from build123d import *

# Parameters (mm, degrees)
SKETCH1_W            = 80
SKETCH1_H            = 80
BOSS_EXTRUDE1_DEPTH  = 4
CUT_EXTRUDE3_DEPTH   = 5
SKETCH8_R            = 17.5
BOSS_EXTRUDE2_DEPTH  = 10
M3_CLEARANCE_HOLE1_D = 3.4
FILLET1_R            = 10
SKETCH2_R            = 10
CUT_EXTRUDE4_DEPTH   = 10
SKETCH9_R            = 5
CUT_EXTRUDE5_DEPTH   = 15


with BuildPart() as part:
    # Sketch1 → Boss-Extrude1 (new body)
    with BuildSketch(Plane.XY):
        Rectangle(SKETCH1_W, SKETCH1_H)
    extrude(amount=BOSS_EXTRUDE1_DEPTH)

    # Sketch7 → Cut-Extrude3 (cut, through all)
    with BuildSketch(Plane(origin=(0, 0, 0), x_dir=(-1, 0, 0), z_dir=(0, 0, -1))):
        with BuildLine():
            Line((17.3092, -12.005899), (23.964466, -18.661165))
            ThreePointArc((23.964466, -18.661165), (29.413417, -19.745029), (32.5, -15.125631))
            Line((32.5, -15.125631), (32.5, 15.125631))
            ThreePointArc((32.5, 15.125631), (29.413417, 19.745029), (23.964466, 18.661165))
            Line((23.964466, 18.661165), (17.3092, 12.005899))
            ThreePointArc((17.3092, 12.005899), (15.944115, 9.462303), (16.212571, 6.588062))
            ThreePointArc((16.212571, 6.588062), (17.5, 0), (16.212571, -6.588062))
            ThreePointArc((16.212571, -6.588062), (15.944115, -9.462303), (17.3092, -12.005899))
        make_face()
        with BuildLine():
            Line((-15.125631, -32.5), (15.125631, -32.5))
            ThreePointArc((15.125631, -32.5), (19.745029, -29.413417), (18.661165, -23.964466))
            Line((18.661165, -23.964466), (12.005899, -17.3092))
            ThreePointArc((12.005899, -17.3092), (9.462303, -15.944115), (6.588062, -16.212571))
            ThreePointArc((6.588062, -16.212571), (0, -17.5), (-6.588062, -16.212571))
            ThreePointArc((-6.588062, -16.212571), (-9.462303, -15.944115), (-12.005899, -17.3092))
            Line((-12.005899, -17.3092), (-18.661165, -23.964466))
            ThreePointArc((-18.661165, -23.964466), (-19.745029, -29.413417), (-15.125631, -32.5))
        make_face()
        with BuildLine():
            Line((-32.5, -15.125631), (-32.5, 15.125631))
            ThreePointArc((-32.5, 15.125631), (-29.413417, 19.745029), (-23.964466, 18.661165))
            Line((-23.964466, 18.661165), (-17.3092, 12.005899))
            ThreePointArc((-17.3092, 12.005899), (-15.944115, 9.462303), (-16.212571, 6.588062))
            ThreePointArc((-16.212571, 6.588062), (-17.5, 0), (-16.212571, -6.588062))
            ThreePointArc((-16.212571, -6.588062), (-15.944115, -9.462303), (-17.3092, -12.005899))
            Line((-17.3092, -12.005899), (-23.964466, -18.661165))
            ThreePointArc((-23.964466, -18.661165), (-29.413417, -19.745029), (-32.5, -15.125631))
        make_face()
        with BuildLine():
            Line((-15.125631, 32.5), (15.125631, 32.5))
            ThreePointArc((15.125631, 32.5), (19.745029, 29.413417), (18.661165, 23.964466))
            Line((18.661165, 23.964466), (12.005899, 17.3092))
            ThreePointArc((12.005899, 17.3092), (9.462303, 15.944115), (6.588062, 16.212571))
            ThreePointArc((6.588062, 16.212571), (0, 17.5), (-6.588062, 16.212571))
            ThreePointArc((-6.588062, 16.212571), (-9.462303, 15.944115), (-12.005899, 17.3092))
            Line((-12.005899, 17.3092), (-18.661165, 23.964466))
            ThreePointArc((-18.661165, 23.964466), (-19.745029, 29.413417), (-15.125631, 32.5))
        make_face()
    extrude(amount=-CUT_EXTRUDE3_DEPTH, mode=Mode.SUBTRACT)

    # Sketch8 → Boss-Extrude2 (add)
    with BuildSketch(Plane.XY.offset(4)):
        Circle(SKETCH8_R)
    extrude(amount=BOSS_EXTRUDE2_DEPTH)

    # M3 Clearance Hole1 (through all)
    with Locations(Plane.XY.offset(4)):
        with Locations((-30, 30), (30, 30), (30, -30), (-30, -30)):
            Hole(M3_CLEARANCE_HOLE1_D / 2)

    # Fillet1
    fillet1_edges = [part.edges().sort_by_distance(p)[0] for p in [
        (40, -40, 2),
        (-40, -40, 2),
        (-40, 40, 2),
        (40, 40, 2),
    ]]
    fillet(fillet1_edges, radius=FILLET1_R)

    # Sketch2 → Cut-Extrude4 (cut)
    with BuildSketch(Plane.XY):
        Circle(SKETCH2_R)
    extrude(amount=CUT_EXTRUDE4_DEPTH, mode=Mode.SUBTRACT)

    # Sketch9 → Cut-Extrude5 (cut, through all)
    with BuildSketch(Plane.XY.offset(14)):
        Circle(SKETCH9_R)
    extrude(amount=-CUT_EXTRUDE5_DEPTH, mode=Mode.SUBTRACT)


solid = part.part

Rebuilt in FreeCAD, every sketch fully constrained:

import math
import FreeCAD as App
import Part
import Sketcher


def edges_at(feature, points):
    """Names of the edges that pass closest to the given points."""
    edges = feature.Shape.Edges
    near = lambda p: min(range(len(edges)), key=lambda i: edges[i].distToShape(Part.Vertex(*p))[0])
    return sorted({f"Edge{near(p) + 1}" for p in points})

doc = App.newDocument("Part")
body = doc.addObject("PartDesign::Body", "Body")

# Sketch on XY plane
sketch1 = body.newObject("Sketcher::SketchObject", "Sketch")
sketch1.AttachmentSupport = (doc.getObject("XY_Plane"), [""])
sketch1.MapMode = "FlatFace"
sketch1.addGeometry(Part.LineSegment(App.Vector(-40, 40, 0), App.Vector(-40, -40, 0)), False)
sketch1.addGeometry(Part.LineSegment(App.Vector(-40, -40, 0), App.Vector(40, -40, 0)), False)
sketch1.addGeometry(Part.LineSegment(App.Vector(40, -40, 0), App.Vector(40, 40, 0)), False)
sketch1.addGeometry(Part.LineSegment(App.Vector(40, 40, 0), App.Vector(-40, 40, 0)), False)
sketch1.addConstraint(Sketcher.Constraint("Coincident", 0, 2, 1, 1))
sketch1.addConstraint(Sketcher.Constraint("Coincident", 1, 2, 2, 1))
sketch1.addConstraint(Sketcher.Constraint("Coincident", 2, 2, 3, 1))
sketch1.addConstraint(Sketcher.Constraint("Coincident", 3, 2, 0, 1))
sketch1.addConstraint(Sketcher.Constraint("Vertical", 0))
sketch1.addConstraint(Sketcher.Constraint("Horizontal", 1))
sketch1.addConstraint(Sketcher.Constraint("Vertical", 2))
sketch1.addConstraint(Sketcher.Constraint("Horizontal", 3))
sketch1.addConstraint(Sketcher.Constraint("Symmetric", 0, 2, 2, 2, -1, 1))
sketch1.addConstraint(Sketcher.Constraint("Equal", 3, 0))
sketch1.addConstraint(Sketcher.Constraint("DistanceX", 1, 1, 1, 2, 80.0))
pad1 = body.newObject("PartDesign::Pad", "Pad")
pad1.Profile = sketch1
pad1.Length = 4

# Sketch on XY plane
sketch2 = body.newObject("Sketcher::SketchObject", "Sketch001")
sketch2.AttachmentSupport = (doc.getObject("XY_Plane"), [""])
sketch2.MapMode = "FlatFace"
sketch2.addGeometry(Part.LineSegment(App.Vector(-17.3, -12, 0), App.Vector(-24, -18.7, 0)), False)
sketch2.addGeometry(Part.ArcOfCircle(Part.Circle(App.Vector(-27.5, -15.1, 0), App.Vector(0, 0, 1), 5), math.radians(180), math.radians(315)), False)
sketch2.addGeometry(Part.LineSegment(App.Vector(-32.5, -15.1, 0), App.Vector(-32.5, 15.1, 0)), False)
sketch2.addGeometry(Part.ArcOfCircle(Part.Circle(App.Vector(-27.5, 15.1, 0), App.Vector(0, 0, 1), 5), math.radians(45), math.radians(180)), False)
sketch2.addGeometry(Part.LineSegment(App.Vector(-24, 18.7, 0), App.Vector(-17.3, 12, 0)), False)
sketch2.addGeometry(Part.ArcOfCircle(Part.Circle(App.Vector(-20.8, 8.5, 0), App.Vector(0, 0, 1), 5), math.radians(-22), math.radians(45)), False)
sketch2.addGeometry(Part.ArcOfCircle(Part.Circle(App.Vector(0, 0, 0), App.Vector(0, 0, 1), 17.5), math.radians(158), math.radians(202)), False)
sketch2.addGeometry(Part.ArcOfCircle(Part.Circle(App.Vector(-20.8, -8.5, 0), App.Vector(0, 0, 1), 5), math.radians(-45), math.radians(22)), False)
sketch2.addGeometry(Part.LineSegment(App.Vector(15.1, -32.5, 0), App.Vector(-15.1, -32.5, 0)), False)
sketch2.addGeometry(Part.ArcOfCircle(Part.Circle(App.Vector(-15.1, -27.5, 0), App.Vector(0, 0, 1), 5), math.radians(135), math.radians(270)), False)
sketch2.addGeometry(Part.LineSegment(App.Vector(-18.7, -24, 0), App.Vector(-12, -17.3, 0)), False)
sketch2.addGeometry(Part.ArcOfCircle(Part.Circle(App.Vector(-8.5, -20.8, 0), App.Vector(0, 0, 1), 5), math.radians(68), math.radians(135)), False)
sketch2.addGeometry(Part.ArcOfCircle(Part.Circle(App.Vector(0, 0, 0), App.Vector(0, 0, 1), 17.5), math.radians(-112), math.radians(-68)), False)
sketch2.addGeometry(Part.ArcOfCircle(Part.Circle(App.Vector(8.5, -20.8, 0), App.Vector(0, 0, 1), 5), math.radians(45), math.radians(112)), False)
sketch2.addGeometry(Part.LineSegment(App.Vector(12, -17.3, 0), App.Vector(18.7, -24, 0)), False)
sketch2.addGeometry(Part.ArcOfCircle(Part.Circle(App.Vector(15.1, -27.5, 0), App.Vector(0, 0, 1), 5), math.radians(-90), math.radians(45)), False)
sketch2.addGeometry(Part.LineSegment(App.Vector(32.5, 15.1, 0), App.Vector(32.5, -15.1, 0)), False)
sketch2.addGeometry(Part.ArcOfCircle(Part.Circle(App.Vector(27.5, -15.1, 0), App.Vector(0, 0, 1), 5), math.radians(-135), math.radians(0)), False)
sketch2.addGeometry(Part.LineSegment(App.Vector(24, -18.7, 0), App.Vector(17.3, -12, 0)), False)
sketch2.addGeometry(Part.ArcOfCircle(Part.Circle(App.Vector(20.8, -8.5, 0), App.Vector(0, 0, 1), 5), math.radians(158), math.radians(225)), False)
sketch2.addGeometry(Part.ArcOfCircle(Part.Circle(App.Vector(0, 0, 0), App.Vector(0, 0, 1), 17.5), math.radians(-22), math.radians(22)), False)
sketch2.addGeometry(Part.ArcOfCircle(Part.Circle(App.Vector(20.8, 8.5, 0), App.Vector(0, 0, 1), 5), math.radians(135), math.radians(202)), False)
sketch2.addGeometry(Part.LineSegment(App.Vector(17.3, 12, 0), App.Vector(24, 18.7, 0)), False)
sketch2.addGeometry(Part.ArcOfCircle(Part.Circle(App.Vector(27.5, 15.1, 0), App.Vector(0, 0, 1), 5), math.radians(0), math.radians(135)), False)
sketch2.addGeometry(Part.LineSegment(App.Vector(-15.1, 32.5, 0), App.Vector(15.1, 32.5, 0)), False)
sketch2.addGeometry(Part.ArcOfCircle(Part.Circle(App.Vector(15.1, 27.5, 0), App.Vector(0, 0, 1), 5), math.radians(-45), math.radians(90)), False)
sketch2.addGeometry(Part.LineSegment(App.Vector(18.7, 24, 0), App.Vector(12, 17.3, 0)), False)
sketch2.addGeometry(Part.ArcOfCircle(Part.Circle(App.Vector(8.5, 20.8, 0), App.Vector(0, 0, 1), 5), math.radians(-112), math.radians(-45)), False)
sketch2.addGeometry(Part.ArcOfCircle(Part.Circle(App.Vector(0, 0, 0), App.Vector(0, 0, 1), 17.5), math.radians(68), math.radians(112)), False)
sketch2.addGeometry(Part.ArcOfCircle(Part.Circle(App.Vector(-8.5, 20.8, 0), App.Vector(0, 0, 1), 5), math.radians(-135), math.radians(-68)), False)
sketch2.addGeometry(Part.LineSegment(App.Vector(-12, 17.3, 0), App.Vector(-18.7, 24, 0)), False)
sketch2.addGeometry(Part.ArcOfCircle(Part.Circle(App.Vector(-15.1, 27.5, 0), App.Vector(0, 0, 1), 5), math.radians(90), math.radians(225)), False)
sketch2.addConstraint(Sketcher.Constraint("Tangent", 0, 2, 1, 2))
sketch2.addConstraint(Sketcher.Constraint("Tangent", 1, 1, 2, 1))
sketch2.addConstraint(Sketcher.Constraint("Tangent", 2, 2, 3, 2))
sketch2.addConstraint(Sketcher.Constraint("Tangent", 3, 1, 4, 1))
sketch2.addConstraint(Sketcher.Constraint("Tangent", 4, 2, 5, 2))
sketch2.addConstraint(Sketcher.Constraint("Tangent", 5, 1, 6, 1))
sketch2.addConstraint(Sketcher.Constraint("Tangent", 6, 2, 7, 2))
sketch2.addConstraint(Sketcher.Constraint("Tangent", 7, 1, 0, 1))
sketch2.addConstraint(Sketcher.Constraint("Tangent", 8, 2, 9, 2))
sketch2.addConstraint(Sketcher.Constraint("Tangent", 9, 1, 10, 1))
sketch2.addConstraint(Sketcher.Constraint("Tangent", 10, 2, 11, 2))
sketch2.addConstraint(Sketcher.Constraint("Tangent", 11, 1, 12, 1))
sketch2.addConstraint(Sketcher.Constraint("Tangent", 12, 2, 13, 2))
sketch2.addConstraint(Sketcher.Constraint("Tangent", 13, 1, 14, 1))
sketch2.addConstraint(Sketcher.Constraint("Tangent", 14, 2, 15, 2))
sketch2.addConstraint(Sketcher.Constraint("Tangent", 15, 1, 8, 1))
sketch2.addConstraint(Sketcher.Constraint("Tangent", 16, 2, 17, 2))
sketch2.addConstraint(Sketcher.Constraint("Tangent", 17, 1, 18, 1))
sketch2.addConstraint(Sketcher.Constraint("Tangent", 18, 2, 19, 2))
sketch2.addConstraint(Sketcher.Constraint("Tangent", 19, 1, 20, 1))
sketch2.addConstraint(Sketcher.Constraint("Tangent", 20, 2, 21, 2))
sketch2.addConstraint(Sketcher.Constraint("Tangent", 21, 1, 22, 1))
sketch2.addConstraint(Sketcher.Constraint("Tangent", 22, 2, 23, 2))
sketch2.addConstraint(Sketcher.Constraint("Tangent", 23, 1, 16, 1))
sketch2.addConstraint(Sketcher.Constraint("Tangent", 24, 2, 25, 2))
sketch2.addConstraint(Sketcher.Constraint("Tangent", 25, 1, 26, 1))
sketch2.addConstraint(Sketcher.Constraint("Tangent", 26, 2, 27, 2))
sketch2.addConstraint(Sketcher.Constraint("Tangent", 27, 1, 28, 1))
sketch2.addConstraint(Sketcher.Constraint("Tangent", 28, 2, 29, 2))
sketch2.addConstraint(Sketcher.Constraint("Tangent", 29, 1, 30, 1))
sketch2.addConstraint(Sketcher.Constraint("Tangent", 30, 2, 31, 2))
sketch2.addConstraint(Sketcher.Constraint("Tangent", 31, 1, 24, 1))
sketch2.addConstraint(Sketcher.Constraint("Vertical", 2))
sketch2.addConstraint(Sketcher.Constraint("Horizontal", 8))
sketch2.addConstraint(Sketcher.Constraint("Vertical", 16))
sketch2.addConstraint(Sketcher.Constraint("Horizontal", 24))
sketch2.addConstraint(Sketcher.Constraint("Coincident", 6, 3, -1, 1))
sketch2.addConstraint(Sketcher.Constraint("Coincident", 12, 3, -1, 1))
sketch2.addConstraint(Sketcher.Constraint("Coincident", 20, 3, -1, 1))
sketch2.addConstraint(Sketcher.Constraint("Coincident", 28, 3, -1, 1))
sketch2.addConstraint(Sketcher.Constraint("Equal", 1, 3))
sketch2.addConstraint(Sketcher.Constraint("Equal", 5, 7))
sketch2.addConstraint(Sketcher.Constraint("Equal", 3, 9))
sketch2.addConstraint(Sketcher.Constraint("Equal", 7, 11))
sketch2.addConstraint(Sketcher.Constraint("Equal", 6, 12))
sketch2.addConstraint(Sketcher.Constraint("Equal", 11, 13))
sketch2.addConstraint(Sketcher.Constraint("Equal", 9, 15))
sketch2.addConstraint(Sketcher.Constraint("Equal", 15, 17))
sketch2.addConstraint(Sketcher.Constraint("Equal", 13, 19))
sketch2.addConstraint(Sketcher.Constraint("Equal", 12, 20))
sketch2.addConstraint(Sketcher.Constraint("Equal", 19, 21))
sketch2.addConstraint(Sketcher.Constraint("Equal", 17, 23))
sketch2.addConstraint(Sketcher.Constraint("Equal", 23, 25))
sketch2.addConstraint(Sketcher.Constraint("Equal", 21, 27))
sketch2.addConstraint(Sketcher.Constraint("Equal", 20, 28))
sketch2.addConstraint(Sketcher.Constraint("Equal", 27, 29))
sketch2.addConstraint(Sketcher.Constraint("Equal", 25, 31))
sketch2.addConstraint(Sketcher.Constraint("Symmetric", 3, 3, 17, 3, -1, 1))
sketch2.addConstraint(Sketcher.Constraint("Symmetric", 9, 3, 25, 3, -1, 1))
sketch2.addConstraint(Sketcher.Constraint("Symmetric", 7, 1, 21, 1, -1, 1))
sketch2.addConstraint(Sketcher.Constraint("Symmetric", 13, 1, 29, 1, -1, 1))
sketch2.addConstraint(Sketcher.Constraint("Symmetric", 10, 2, 13, 1, -2))
sketch2.addConstraint(Sketcher.Constraint("Symmetric", 0, 2, 17, 1, -2))
sketch2.addConstraint(Sketcher.Constraint("Perpendicular", 0, 4))
sketch2.addConstraint(Sketcher.Constraint("Perpendicular", 4, 10))
sketch2.addConstraint(Sketcher.Constraint("Perpendicular", 10, 14))
sketch2.addConstraint(Sketcher.Constraint("Parallel", 22, 26))
sketch2.addConstraint(Sketcher.Constraint("Equal", 24, 2))
sketch2.addConstraint(Sketcher.Constraint("Equal", 4, 10))
sketch2.addConstraint(Sketcher.Constraint("Radius", 1, 5.0))
sketch2.addConstraint(Sketcher.Constraint("DistanceX", 1, 3, -1, 1, 27.5))
sketch2.addConstraint(Sketcher.Constraint("Radius", 5, 4.999996))
sketch2.addConstraint(Sketcher.Constraint("Radius", 6, 17.500008))
sketch2.addConstraint(Sketcher.Constraint("DistanceX", 4, 2, -1, 1, 17.3092))
pocket1 = body.newObject("PartDesign::Pocket", "Pocket")
pocket1.Profile = sketch2
pocket1.Type = "ThroughAll"
pocket1.Reversed = True

# Sketch on XY plane
sketch3 = body.newObject("Sketcher::SketchObject", "Sketch002")
sketch3.AttachmentSupport = (doc.getObject("XY_Plane"), [""])
sketch3.MapMode = "FlatFace"
sketch3.AttachmentOffset = App.Placement(App.Vector(0, 0, 4), App.Rotation())
sketch3.addGeometry(Part.Circle(App.Vector(0, 0, 0), App.Vector(0, 0, 1), 18), False)
sketch3.addConstraint(Sketcher.Constraint("Coincident", 0, 3, -1, 1))
sketch3.addConstraint(Sketcher.Constraint("Diameter", 0, 35.0))
pad2 = body.newObject("PartDesign::Pad", "Pad001")
pad2.Profile = sketch3
pad2.Length = 10

# Sketch on XY plane
sketch4 = body.newObject("Sketcher::SketchObject", "Sketch003")
sketch4.AttachmentSupport = (doc.getObject("XY_Plane"), [""])
sketch4.MapMode = "FlatFace"
sketch4.AttachmentOffset = App.Placement(App.Vector(0, 0, 4), App.Rotation())
sketch4.addGeometry(Part.Circle(App.Vector(-30, 30, 0), App.Vector(0, 0, 1), 1.7), False)
sketch4.addGeometry(Part.Circle(App.Vector(30, 30, 0), App.Vector(0, 0, 1), 1.7), False)
sketch4.addGeometry(Part.Circle(App.Vector(30, -30, 0), App.Vector(0, 0, 1), 1.7), False)
sketch4.addGeometry(Part.Circle(App.Vector(-30, -30, 0), App.Vector(0, 0, 1), 1.7), False)
sketch4.addConstraint(Sketcher.Constraint("Equal", 0, 1))
sketch4.addConstraint(Sketcher.Constraint("Equal", 1, 2))
sketch4.addConstraint(Sketcher.Constraint("Equal", 2, 3))
sketch4.addConstraint(Sketcher.Constraint("Symmetric", 0, 3, 2, 3, -1, 1))
sketch4.addConstraint(Sketcher.Constraint("Symmetric", 1, 3, 3, 3, -1, 1))
sketch4.addConstraint(Sketcher.Constraint("Symmetric", 0, 3, 1, 3, -2))
sketch4.addConstraint(Sketcher.Constraint("Diameter", 0, 3.4))
sketch4.addConstraint(Sketcher.Constraint("DistanceX", 0, 3, -1, 1, 30.0))
sketch4.addConstraint(Sketcher.Constraint("DistanceY", -1, 1, 0, 3, 30.0))
doc.recompute()
hole = body.newObject("PartDesign::Hole", "Hole")
hole.Profile = sketch4
hole.ThreadType = "None"
hole.Diameter = 3.4
hole.DepthType = "ThroughAll"
doc.recompute()

fillet = body.newObject("PartDesign::Fillet", "Fillet")
fillet.Base = (hole, edges_at(hole, [
    (40, -40, 2),
    (-40, -40, 2),
    (-40, 40, 2),
    (40, 40, 2),
]))
fillet.Radius = 10

# Sketch on XY plane
sketch5 = body.newObject("Sketcher::SketchObject", "Sketch004")
sketch5.AttachmentSupport = (doc.getObject("XY_Plane"), [""])
sketch5.MapMode = "FlatFace"
sketch5.addGeometry(Part.Circle(App.Vector(0, 0, 0), App.Vector(0, 0, 1), 10), False)
sketch5.addConstraint(Sketcher.Constraint("Coincident", 0, 3, -1, 1))
sketch5.addConstraint(Sketcher.Constraint("Diameter", 0, 20.0))
pocket2 = body.newObject("PartDesign::Pocket", "Pocket001")
pocket2.Profile = sketch5
pocket2.Length = 10
pocket2.Reversed = True

# Sketch on XY plane
sketch6 = body.newObject("Sketcher::SketchObject", "Sketch005")
sketch6.AttachmentSupport = (doc.getObject("XY_Plane"), [""])
sketch6.MapMode = "FlatFace"
sketch6.AttachmentOffset = App.Placement(App.Vector(0, 0, 14), App.Rotation())
sketch6.addGeometry(Part.Circle(App.Vector(0, 0, 0), App.Vector(0, 0, 1), 5), False)
sketch6.addConstraint(Sketcher.Constraint("Coincident", 0, 3, -1, 1))
sketch6.addConstraint(Sketcher.Constraint("Diameter", 0, 10.0))
pocket3 = body.newObject("PartDesign::Pocket", "Pocket002")
pocket3.Profile = sketch6
pocket3.Type = "ThroughAll"

doc.recompute()
